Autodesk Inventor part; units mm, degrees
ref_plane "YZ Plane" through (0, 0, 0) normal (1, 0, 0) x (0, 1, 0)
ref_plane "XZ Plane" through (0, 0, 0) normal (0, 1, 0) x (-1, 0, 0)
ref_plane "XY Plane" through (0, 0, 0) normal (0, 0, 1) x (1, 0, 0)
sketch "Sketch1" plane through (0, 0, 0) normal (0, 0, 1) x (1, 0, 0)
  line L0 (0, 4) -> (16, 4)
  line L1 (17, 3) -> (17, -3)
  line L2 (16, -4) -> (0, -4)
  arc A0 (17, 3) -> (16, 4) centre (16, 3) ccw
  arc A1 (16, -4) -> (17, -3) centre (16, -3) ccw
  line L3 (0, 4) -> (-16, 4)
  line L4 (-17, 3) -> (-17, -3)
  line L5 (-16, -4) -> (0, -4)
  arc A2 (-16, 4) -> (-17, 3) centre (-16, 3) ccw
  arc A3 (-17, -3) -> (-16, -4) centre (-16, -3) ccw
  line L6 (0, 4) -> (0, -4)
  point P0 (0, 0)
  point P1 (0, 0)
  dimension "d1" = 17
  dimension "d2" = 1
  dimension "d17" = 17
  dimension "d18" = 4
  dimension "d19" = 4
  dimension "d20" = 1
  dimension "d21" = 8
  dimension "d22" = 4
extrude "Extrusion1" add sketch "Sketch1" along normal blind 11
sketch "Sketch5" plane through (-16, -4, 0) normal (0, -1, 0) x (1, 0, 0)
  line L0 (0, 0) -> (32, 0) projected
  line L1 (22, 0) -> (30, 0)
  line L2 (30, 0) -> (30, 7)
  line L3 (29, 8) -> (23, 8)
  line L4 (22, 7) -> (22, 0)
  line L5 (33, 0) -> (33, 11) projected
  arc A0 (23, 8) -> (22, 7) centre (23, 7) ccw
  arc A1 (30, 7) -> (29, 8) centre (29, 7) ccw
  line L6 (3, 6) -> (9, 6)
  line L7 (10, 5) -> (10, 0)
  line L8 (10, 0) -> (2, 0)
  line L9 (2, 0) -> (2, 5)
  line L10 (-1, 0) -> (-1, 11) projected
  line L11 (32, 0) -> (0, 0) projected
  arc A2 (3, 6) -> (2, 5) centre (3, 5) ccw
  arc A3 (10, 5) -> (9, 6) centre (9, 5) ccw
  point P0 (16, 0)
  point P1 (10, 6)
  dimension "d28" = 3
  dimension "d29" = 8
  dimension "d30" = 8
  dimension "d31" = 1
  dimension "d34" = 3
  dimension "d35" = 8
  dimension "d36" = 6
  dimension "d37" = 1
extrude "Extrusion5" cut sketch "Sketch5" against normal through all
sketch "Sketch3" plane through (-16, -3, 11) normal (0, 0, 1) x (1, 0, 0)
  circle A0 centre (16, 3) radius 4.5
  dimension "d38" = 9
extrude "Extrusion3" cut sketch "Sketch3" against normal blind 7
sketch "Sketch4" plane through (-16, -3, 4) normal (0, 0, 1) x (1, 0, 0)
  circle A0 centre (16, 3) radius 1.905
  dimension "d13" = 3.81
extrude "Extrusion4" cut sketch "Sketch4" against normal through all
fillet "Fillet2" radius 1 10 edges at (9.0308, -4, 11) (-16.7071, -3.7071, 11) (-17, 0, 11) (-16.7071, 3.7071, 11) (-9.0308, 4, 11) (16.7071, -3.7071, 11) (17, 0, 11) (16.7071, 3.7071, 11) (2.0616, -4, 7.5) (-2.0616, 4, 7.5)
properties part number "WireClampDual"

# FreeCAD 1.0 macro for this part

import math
import FreeCAD as App
import Part
import Sketcher

V = App.Vector


def edges_at(feature, points):
    """Names of the edges that pass closest to the given points."""
    edges = feature.Shape.Edges
    near = lambda p: min(range(len(edges)), key=lambda i: edges[i].distToShape(Part.Vertex(*p))[0])
    return sorted({f"Edge{near(p) + 1}" for p in points})

doc = App.newDocument("Part")
body = doc.addObject("PartDesign::Body", "Body")

# Sketch on XY plane
sketch1 = body.newObject("Sketcher::SketchObject", "Sketch")
sketch1.AttachmentSupport = (doc.getObject("XY_Plane"), [""])
sketch1.MapMode = "FlatFace"
sketch1.addGeometry(Part.LineSegment(V(-16, -4, 0), V(16, -4, 0)), False)
sketch1.addGeometry(Part.ArcOfCircle(Part.Circle(V(16, -3, 0), V(0, 0, 1), 1), math.radians(-90), math.radians(0)), False)
sketch1.addGeometry(Part.LineSegment(V(17, -3, 0), V(17, 3, 0)), False)
sketch1.addGeometry(Part.ArcOfCircle(Part.Circle(V(16, 3, 0), V(0, 0, 1), 1), math.radians(0), math.radians(90)), False)
sketch1.addGeometry(Part.LineSegment(V(16, 4, 0), V(-16, 4, 0)), False)
sketch1.addGeometry(Part.ArcOfCircle(Part.Circle(V(-16, 3, 0), V(0, 0, 1), 1), math.radians(90), math.radians(180)), False)
sketch1.addGeometry(Part.LineSegment(V(-17, 3, 0), V(-17, -3, 0)), False)
sketch1.addGeometry(Part.ArcOfCircle(Part.Circle(V(-16, -3, 0), V(0, 0, 1), 1), math.radians(180), math.radians(270)), False)
sketch1.addConstraint(Sketcher.Constraint("Tangent", 0, 2, 1, 1))
sketch1.addConstraint(Sketcher.Constraint("Tangent", 1, 2, 2, 1))
sketch1.addConstraint(Sketcher.Constraint("Tangent", 2, 2, 3, 1))
sketch1.addConstraint(Sketcher.Constraint("Tangent", 3, 2, 4, 1))
sketch1.addConstraint(Sketcher.Constraint("Tangent", 4, 2, 5, 1))
sketch1.addConstraint(Sketcher.Constraint("Tangent", 5, 2, 6, 1))
sketch1.addConstraint(Sketcher.Constraint("Tangent", 6, 2, 7, 1))
sketch1.addConstraint(Sketcher.Constraint("Tangent", 7, 2, 0, 1))
sketch1.addConstraint(Sketcher.Constraint("Horizontal", 0))
sketch1.addConstraint(Sketcher.Constraint("Vertical", 2))
sketch1.addConstraint(Sketcher.Constraint("Horizontal", 4))
sketch1.addConstraint(Sketcher.Constraint("Vertical", 6))
sketch1.addConstraint(Sketcher.Constraint("Equal", 1, 3))
sketch1.addConstraint(Sketcher.Constraint("Equal", 3, 5))
sketch1.addConstraint(Sketcher.Constraint("Equal", 5, 7))
sketch1.addConstraint(Sketcher.Constraint("Symmetric", 1, 3, 5, 3, -1, 1))
sketch1.addConstraint(Sketcher.Constraint("Radius", 1, 1.0))
sketch1.addConstraint(Sketcher.Constraint("DistanceY", 0, 2, -1, 1, 4.0))
sketch1.addConstraint(Sketcher.Constraint("DistanceX", -1, 1, 1, 2, 17.0))
pad1 = body.newObject("PartDesign::Pad", "Pad")
pad1.Profile = sketch1
pad1.Length = 11

# Sketch on XZ plane
sketch2 = body.newObject("Sketcher::SketchObject", "Sketch001")
sketch2.AttachmentSupport = (doc.getObject("XZ_Plane"), [""])
sketch2.MapMode = "FlatFace"
sketch2.AttachmentOffset = App.Placement(V(0, 0, 4), App.Rotation())
sketch2.addGeometry(Part.LineSegment(V(-14, 5, 0), V(-14, 0, 0)), False)
sketch2.addGeometry(Part.LineSegment(V(-14, 0, 0), V(-6, 0, 0)), False)
sketch2.addGeometry(Part.LineSegment(V(-6, 0, 0), V(-6, 5, 0)), False)
sketch2.addGeometry(Part.ArcOfCircle(Part.Circle(V(-7, 5, 0), V(0, 0, 1), 1), math.radians(0), math.radians(90)), False)
sketch2.addGeometry(Part.LineSegment(V(-7, 6, 0), V(-13, 6, 0)), False)
sketch2.addGeometry(Part.ArcOfCircle(Part.Circle(V(-13, 5, 0), V(0, 0, 1), 1), math.radians(90), math.radians(180)), False)
sketch2.addGeometry(Part.LineSegment(V(6, 7, 0), V(6, 0, 0)), False)
sketch2.addGeometry(Part.LineSegment(V(6, 0, 0), V(14, 0, 0)), False)
sketch2.addGeometry(Part.LineSegment(V(14, 0, 0), V(14, 7, 0)), False)
sketch2.addGeometry(Part.ArcOfCircle(Part.Circle(V(13, 7, 0), V(0, 0, 1), 1), math.radians(0), math.radians(90)), False)
sketch2.addGeometry(Part.LineSegment(V(13, 8, 0), V(7, 8, 0)), False)
sketch2.addGeometry(Part.ArcOfCircle(Part.Circle(V(7, 7, 0), V(0, 0, 1), 1), math.radians(90), math.radians(180)), False)
sketch2.addConstraint(Sketcher.Constraint("Coincident", 0, 2, 1, 1))
sketch2.addConstraint(Sketcher.Constraint("Coincident", 1, 2, 2, 1))
sketch2.addConstraint(Sketcher.Constraint("Tangent", 2, 2, 3, 1))
sketch2.addConstraint(Sketcher.Constraint("Tangent", 3, 2, 4, 1))
sketch2.addConstraint(Sketcher.Constraint("Tangent", 4, 2, 5, 1))
sketch2.addConstraint(Sketcher.Constraint("Tangent", 5, 2, 0, 1))
sketch2.addConstraint(Sketcher.Constraint("Coincident", 6, 2, 7, 1))
sketch2.addConstraint(Sketcher.Constraint("Coincident", 7, 2, 8, 1))
sketch2.addConstraint(Sketcher.Constraint("Tangent", 8, 2, 9, 1))
sketch2.addConstraint(Sketcher.Constraint("Tangent", 9, 2, 10, 1))
sketch2.addConstraint(Sketcher.Constraint("Tangent", 10, 2, 11, 1))
sketch2.addConstraint(Sketcher.Constraint("Tangent", 11, 2, 6, 1))
sketch2.addConstraint(Sketcher.Constraint("Vertical", 0))
sketch2.addConstraint(Sketcher.Constraint("Horizontal", 1))
sketch2.addConstraint(Sketcher.Constraint("Vertical", 2))
sketch2.addConstraint(Sketcher.Constraint("Horizontal", 4))
sketch2.addConstraint(Sketcher.Constraint("Vertical", 6))
sketch2.addConstraint(Sketcher.Constraint("Horizontal", 7))
sketch2.addConstraint(Sketcher.Constraint("Vertical", 8))
sketch2.addConstraint(Sketcher.Constraint("Horizontal", 10))
sketch2.addConstraint(Sketcher.Constraint("Equal", 3, 5))
sketch2.addConstraint(Sketcher.Constraint("Equal", 5, 9))
sketch2.addConstraint(Sketcher.Constraint("Equal", 9, 11))
sketch2.addConstraint(Sketcher.Constraint("Symmetric", 1, 2, 6, 2, -1, 1))
sketch2.addConstraint(Sketcher.Constraint("Symmetric", 0, 2, 7, 2, -2))
sketch2.addConstraint(Sketcher.Constraint("Radius", 3, 1.0))
sketch2.addConstraint(Sketcher.Constraint("DistanceX", 1, 1, 1, 2, 8.0))
sketch2.addConstraint(Sketcher.Constraint("DistanceX", 1, 2, -1, 1, 6.0))
sketch2.addConstraint(Sketcher.Constraint("DistanceY", -1, 1, 3, 2, 6.0))
sketch2.addConstraint(Sketcher.Constraint("DistanceY", -1, 1, 9, 2, 8.0))
pocket1 = body.newObject("PartDesign::Pocket", "Pocket")
pocket1.Profile = sketch2
pocket1.Type = "ThroughAll"

# Sketch on XY plane
sketch3 = body.newObject("Sketcher::SketchObject", "Sketch002")
sketch3.AttachmentSupport = (doc.getObject("XY_Plane"), [""])
sketch3.MapMode = "FlatFace"
sketch3.AttachmentOffset = App.Placement(V(0, 0, 11), App.Rotation())
sketch3.addGeometry(Part.Circle(V(0, 0, 0), V(0, 0, 1), 4.5), False)
sketch3.addConstraint(Sketcher.Constraint("Coincident", 0, 3, -1, 1))
sketch3.addConstraint(Sketcher.Constraint("Diameter", 0, 9.0))
pocket2 = body.newObject("PartDesign::Pocket", "Pocket001")
pocket2.Profile = sketch3
pocket2.Length = 7

# Sketch on XY plane
sketch4 = body.newObject("Sketcher::SketchObject", "Sketch003")
sketch4.AttachmentSupport = (doc.getObject("XY_Plane"), [""])
sketch4.MapMode = "FlatFace"
sketch4.AttachmentOffset = App.Placement(V(0, 0, 4), App.Rotation())
sketch4.addGeometry(Part.Circle(V(0, 0, 0), V(0, 0, 1), 1.9), False)
sketch4.addConstraint(Sketcher.Constraint("Coincident", 0, 3, -1, 1))
sketch4.addConstraint(Sketcher.Constraint("Diameter", 0, 3.81))
pocket3 = body.newObject("PartDesign::Pocket", "Pocket002")
pocket3.Profile = sketch4
pocket3.Type = "ThroughAll"
doc.recompute()

fillet = body.newObject("PartDesign::Fillet", "Fillet")
fillet.Base = (pocket3, edges_at(pocket3, [
    (9.031, -4, 11),
    (-16.707, -3.707, 11),
    (-17, 0, 11),
    (-16.707, 3.707, 11),
    (-9.031, 4, 11),
    (16.707, -3.707, 11),
    (17, 0, 11),
    (16.707, 3.707, 11),
    (2.062, -4, 7.5),
    (-2.062, 4, 7.5),
]))
fillet.Radius = 1

doc.recompute()
